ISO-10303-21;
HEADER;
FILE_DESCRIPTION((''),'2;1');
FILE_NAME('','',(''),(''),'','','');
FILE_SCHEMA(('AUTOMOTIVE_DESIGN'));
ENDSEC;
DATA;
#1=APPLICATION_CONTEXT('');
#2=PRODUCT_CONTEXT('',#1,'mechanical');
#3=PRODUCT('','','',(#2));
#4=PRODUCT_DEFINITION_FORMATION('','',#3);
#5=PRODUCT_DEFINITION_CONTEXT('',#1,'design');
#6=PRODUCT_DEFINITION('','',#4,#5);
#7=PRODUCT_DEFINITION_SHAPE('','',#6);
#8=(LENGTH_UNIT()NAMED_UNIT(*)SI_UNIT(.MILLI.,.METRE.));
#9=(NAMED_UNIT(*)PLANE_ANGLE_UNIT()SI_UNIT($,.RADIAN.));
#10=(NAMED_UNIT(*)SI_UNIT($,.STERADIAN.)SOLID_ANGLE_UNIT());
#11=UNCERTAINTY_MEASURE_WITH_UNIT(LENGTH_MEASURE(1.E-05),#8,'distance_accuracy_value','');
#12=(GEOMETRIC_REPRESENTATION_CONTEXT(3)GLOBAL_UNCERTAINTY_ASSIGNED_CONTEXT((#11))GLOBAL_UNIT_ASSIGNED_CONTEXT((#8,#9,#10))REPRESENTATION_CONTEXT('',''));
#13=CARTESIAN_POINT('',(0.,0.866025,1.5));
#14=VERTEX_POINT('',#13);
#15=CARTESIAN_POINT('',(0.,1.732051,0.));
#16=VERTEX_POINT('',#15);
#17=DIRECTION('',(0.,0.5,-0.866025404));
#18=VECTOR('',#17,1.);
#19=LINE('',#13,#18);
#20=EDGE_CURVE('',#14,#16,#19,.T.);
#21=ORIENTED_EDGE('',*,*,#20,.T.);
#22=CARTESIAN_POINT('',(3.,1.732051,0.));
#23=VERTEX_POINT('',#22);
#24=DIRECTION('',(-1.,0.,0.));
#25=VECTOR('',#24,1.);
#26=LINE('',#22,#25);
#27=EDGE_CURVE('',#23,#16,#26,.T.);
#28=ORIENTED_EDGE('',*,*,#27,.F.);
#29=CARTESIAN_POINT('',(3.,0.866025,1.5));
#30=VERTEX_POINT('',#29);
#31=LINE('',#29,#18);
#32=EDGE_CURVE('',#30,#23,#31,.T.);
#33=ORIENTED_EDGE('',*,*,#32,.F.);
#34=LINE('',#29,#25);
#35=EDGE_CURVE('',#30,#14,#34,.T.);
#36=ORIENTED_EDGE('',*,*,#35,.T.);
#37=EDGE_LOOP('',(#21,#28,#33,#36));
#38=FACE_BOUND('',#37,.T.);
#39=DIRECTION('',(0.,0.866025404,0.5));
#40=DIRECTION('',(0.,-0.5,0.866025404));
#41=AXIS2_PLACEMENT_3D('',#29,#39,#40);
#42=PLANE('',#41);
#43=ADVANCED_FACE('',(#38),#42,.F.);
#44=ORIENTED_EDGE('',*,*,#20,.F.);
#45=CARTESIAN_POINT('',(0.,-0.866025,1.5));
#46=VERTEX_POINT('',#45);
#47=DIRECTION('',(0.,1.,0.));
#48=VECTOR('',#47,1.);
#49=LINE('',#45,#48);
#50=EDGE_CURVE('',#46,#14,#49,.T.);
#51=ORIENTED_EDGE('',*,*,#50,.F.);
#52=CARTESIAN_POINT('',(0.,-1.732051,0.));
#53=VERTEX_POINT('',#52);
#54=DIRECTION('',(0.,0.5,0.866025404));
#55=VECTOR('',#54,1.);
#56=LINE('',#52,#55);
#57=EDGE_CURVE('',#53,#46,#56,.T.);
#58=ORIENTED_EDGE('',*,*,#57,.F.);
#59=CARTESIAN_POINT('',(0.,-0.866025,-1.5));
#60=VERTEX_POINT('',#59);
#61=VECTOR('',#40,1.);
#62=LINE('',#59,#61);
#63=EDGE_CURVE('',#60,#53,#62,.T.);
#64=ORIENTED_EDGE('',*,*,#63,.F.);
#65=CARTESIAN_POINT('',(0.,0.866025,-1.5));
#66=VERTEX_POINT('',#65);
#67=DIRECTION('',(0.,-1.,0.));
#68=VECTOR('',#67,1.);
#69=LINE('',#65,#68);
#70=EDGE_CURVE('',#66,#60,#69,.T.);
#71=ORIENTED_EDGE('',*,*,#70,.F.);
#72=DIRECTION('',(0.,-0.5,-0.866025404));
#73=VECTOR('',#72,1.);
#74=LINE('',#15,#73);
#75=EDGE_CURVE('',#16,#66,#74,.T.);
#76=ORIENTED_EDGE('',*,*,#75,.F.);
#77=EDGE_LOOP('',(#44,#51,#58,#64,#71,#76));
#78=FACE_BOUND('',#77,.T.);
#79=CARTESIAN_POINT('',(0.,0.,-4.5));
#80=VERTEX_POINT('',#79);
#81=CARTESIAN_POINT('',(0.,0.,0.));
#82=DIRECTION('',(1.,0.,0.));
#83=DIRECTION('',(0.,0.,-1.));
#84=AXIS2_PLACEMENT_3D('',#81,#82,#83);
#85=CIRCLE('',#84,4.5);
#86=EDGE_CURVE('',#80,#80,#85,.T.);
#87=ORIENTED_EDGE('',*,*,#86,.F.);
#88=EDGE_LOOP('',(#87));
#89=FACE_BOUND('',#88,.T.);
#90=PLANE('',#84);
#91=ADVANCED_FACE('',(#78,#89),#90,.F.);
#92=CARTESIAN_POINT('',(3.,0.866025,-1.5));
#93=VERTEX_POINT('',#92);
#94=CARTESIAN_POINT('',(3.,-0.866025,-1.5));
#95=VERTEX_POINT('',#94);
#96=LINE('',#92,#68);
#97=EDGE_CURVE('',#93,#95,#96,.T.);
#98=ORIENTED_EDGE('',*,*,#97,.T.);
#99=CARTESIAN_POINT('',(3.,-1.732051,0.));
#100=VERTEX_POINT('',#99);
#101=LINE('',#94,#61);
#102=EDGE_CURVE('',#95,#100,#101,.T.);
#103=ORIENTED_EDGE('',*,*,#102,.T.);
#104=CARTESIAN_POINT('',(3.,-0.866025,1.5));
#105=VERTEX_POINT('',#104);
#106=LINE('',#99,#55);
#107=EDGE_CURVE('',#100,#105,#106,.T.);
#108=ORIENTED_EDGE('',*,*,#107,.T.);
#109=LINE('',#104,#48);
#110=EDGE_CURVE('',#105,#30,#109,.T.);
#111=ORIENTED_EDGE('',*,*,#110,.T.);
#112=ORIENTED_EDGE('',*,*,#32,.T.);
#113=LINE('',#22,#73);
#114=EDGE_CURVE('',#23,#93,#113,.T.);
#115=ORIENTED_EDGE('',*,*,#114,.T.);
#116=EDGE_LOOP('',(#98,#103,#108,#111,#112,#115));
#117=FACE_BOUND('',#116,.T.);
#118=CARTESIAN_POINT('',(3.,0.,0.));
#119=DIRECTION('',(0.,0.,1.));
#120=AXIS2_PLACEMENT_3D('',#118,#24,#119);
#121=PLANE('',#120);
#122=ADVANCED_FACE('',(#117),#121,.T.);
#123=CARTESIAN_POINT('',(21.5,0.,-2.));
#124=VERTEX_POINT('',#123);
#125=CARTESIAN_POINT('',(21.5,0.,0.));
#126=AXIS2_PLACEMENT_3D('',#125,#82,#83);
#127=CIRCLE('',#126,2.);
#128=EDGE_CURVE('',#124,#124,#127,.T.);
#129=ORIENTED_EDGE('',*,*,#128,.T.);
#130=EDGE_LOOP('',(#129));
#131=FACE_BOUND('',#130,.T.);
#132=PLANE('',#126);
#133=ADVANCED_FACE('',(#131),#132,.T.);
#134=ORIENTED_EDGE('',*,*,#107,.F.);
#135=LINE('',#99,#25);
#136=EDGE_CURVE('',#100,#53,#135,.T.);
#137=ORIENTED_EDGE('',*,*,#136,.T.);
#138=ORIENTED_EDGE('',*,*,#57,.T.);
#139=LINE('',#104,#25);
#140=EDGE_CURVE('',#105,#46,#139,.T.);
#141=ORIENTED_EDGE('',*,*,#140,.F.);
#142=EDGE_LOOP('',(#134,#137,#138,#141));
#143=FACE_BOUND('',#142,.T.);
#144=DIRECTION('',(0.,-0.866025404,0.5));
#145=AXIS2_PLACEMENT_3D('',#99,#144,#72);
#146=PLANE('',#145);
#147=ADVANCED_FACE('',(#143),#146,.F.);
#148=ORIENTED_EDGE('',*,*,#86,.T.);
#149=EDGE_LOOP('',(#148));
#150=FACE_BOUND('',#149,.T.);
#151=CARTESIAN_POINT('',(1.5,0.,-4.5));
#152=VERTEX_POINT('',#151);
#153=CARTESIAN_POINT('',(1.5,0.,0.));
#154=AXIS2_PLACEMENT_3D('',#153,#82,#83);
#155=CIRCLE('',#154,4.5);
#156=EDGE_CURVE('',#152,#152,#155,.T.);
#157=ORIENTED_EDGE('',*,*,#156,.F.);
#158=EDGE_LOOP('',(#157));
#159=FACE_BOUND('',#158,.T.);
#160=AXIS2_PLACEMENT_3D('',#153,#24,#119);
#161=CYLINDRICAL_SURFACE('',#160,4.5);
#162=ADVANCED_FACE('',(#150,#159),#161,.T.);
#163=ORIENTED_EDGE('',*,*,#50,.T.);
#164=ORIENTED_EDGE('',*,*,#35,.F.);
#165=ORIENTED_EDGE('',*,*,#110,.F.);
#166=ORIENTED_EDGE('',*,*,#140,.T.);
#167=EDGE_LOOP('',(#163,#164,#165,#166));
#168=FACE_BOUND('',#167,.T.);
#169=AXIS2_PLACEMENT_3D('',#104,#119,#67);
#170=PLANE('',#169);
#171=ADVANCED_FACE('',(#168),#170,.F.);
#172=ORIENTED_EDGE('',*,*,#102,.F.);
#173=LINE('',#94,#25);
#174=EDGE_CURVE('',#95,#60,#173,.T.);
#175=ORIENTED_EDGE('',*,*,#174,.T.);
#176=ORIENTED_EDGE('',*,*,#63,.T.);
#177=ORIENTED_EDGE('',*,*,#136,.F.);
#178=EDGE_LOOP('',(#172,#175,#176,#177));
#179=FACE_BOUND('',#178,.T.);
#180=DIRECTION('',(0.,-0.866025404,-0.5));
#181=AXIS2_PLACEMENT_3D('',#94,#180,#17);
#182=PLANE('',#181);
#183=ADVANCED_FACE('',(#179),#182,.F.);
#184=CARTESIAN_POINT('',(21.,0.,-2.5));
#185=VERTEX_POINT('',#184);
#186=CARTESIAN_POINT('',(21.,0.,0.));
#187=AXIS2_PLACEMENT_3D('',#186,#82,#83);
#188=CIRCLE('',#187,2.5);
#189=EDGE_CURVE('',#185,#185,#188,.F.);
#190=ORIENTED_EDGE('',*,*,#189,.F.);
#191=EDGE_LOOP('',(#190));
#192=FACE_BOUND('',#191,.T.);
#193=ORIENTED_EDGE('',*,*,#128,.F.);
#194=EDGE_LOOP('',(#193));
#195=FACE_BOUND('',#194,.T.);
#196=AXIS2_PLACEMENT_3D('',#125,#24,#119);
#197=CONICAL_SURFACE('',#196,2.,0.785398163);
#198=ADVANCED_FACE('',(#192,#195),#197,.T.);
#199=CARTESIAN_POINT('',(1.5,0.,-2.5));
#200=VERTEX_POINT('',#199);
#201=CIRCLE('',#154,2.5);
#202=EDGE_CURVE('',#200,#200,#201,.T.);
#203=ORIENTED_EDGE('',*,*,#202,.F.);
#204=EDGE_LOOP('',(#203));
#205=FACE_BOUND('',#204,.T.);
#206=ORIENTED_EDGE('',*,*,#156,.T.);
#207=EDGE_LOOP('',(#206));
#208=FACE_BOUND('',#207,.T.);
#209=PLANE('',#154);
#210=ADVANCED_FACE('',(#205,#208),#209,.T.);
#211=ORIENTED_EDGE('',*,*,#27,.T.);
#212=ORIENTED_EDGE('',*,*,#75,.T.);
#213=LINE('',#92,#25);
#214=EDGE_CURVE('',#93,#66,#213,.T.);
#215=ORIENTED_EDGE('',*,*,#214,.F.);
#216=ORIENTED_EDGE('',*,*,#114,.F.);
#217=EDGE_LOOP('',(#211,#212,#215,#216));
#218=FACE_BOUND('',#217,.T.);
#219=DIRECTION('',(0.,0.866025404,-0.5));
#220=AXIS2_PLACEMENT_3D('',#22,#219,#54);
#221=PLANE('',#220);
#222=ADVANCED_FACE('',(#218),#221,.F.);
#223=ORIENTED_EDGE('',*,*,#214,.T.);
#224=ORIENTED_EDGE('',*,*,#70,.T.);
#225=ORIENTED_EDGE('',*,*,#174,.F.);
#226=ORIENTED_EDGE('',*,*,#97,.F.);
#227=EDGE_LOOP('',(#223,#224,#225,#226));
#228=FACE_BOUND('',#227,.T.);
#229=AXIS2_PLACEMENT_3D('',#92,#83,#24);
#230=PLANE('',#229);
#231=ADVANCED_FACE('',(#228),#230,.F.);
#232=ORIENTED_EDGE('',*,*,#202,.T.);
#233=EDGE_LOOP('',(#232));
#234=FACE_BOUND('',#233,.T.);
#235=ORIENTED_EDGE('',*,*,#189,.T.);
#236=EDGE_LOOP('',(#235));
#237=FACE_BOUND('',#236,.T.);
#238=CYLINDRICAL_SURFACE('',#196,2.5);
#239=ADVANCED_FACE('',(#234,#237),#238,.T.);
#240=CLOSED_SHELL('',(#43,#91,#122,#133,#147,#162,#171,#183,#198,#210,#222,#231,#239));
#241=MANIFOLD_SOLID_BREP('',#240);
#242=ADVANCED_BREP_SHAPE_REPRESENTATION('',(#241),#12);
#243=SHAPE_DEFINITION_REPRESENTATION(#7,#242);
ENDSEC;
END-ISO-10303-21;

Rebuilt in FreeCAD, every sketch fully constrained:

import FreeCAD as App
import Part
import Sketcher
from FreeCAD import Vector
Q = App.Units.Quantity


def edges_at(feature, points):
    """Names of the edges that pass closest to the given points."""
    edges = feature.Shape.Edges
    near = lambda p: min(range(len(edges)), key=lambda i: edges[i].distToShape(Part.Vertex(*p))[0])
    return sorted({f"Edge{near(p) + 1}" for p in points})

doc = App.newDocument("Part")
body = doc.addObject("PartDesign::Body", "Body")

sketch1 = doc.addObject("Sketcher::SketchObject", "Sketch")
body.addObject(sketch1)
sketch1.AttachmentSupport = (doc.YZ_Plane, [""])
sketch1.MapMode = "FlatFace"
sketch1.addGeometry(Part.Circle(Vector(0, 0, 0), Vector(0, 0, 1), 4.5), False)
sketch1.addConstraint(Sketcher.Constraint("Coincident", 0, 3, -1, 1))
sketch1.addConstraint(Sketcher.Constraint("Diameter", 0, 9.0))
pad1 = doc.addObject("PartDesign::Pad", "Pad")
body.addObject(pad1)
pad1.Profile = sketch1
pad1.Length = 1.5

sketch2 = doc.addObject("Sketcher::SketchObject", "Sketch001")
body.addObject(sketch2)
sketch2.AttachmentSupport = (doc.YZ_Plane, [""])
sketch2.MapMode = "FlatFace"
sketch2.AttachmentOffset = App.Placement(Vector(0, 0, 1.5), App.Rotation())
sketch2.addGeometry(Part.Circle(Vector(0, 0, 0), Vector(0, 0, 1), 2.5), False)
sketch2.addConstraint(Sketcher.Constraint("Coincident", 0, 3, -1, 1))
sketch2.addConstraint(Sketcher.Constraint("Diameter", 0, 5.0))
pad2 = doc.addObject("PartDesign::Pad", "Pad001")
body.addObject(pad2)
pad2.Profile = sketch2
pad2.Length = 20

sketch3 = doc.addObject("Sketcher::SketchObject", "Sketch002")
body.addObject(sketch3)
sketch3.AttachmentSupport = (doc.YZ_Plane, [""])
sketch3.MapMode = "FlatFace"
sketch3.addGeometry(Part.LineSegment(Vector(1.7, 0, 0), Vector(0.9, -1.5, 0)), False)
sketch3.addGeometry(Part.LineSegment(Vector(0.9, -1.5, 0), Vector(-0.9, -1.5, 0)), False)
sketch3.addGeometry(Part.LineSegment(Vector(-0.9, -1.5, 0), Vector(-1.7, 0, 0)), False)
sketch3.addGeometry(Part.LineSegment(Vector(-1.7, 0, 0), Vector(-0.9, 1.5, 0)), False)
sketch3.addGeometry(Part.LineSegment(Vector(-0.9, 1.5, 0), Vector(0.9, 1.5, 0)), False)
sketch3.addGeometry(Part.LineSegment(Vector(0.9, 1.5, 0), Vector(1.7, 0, 0)), False)
sketch3.addConstraint(Sketcher.Constraint("Coincident", 0, 2, 1, 1))
sketch3.addConstraint(Sketcher.Constraint("Coincident", 1, 2, 2, 1))
sketch3.addConstraint(Sketcher.Constraint("Coincident", 2, 2, 3, 1))
sketch3.addConstraint(Sketcher.Constraint("Coincident", 3, 2, 4, 1))
sketch3.addConstraint(Sketcher.Constraint("Coincident", 4, 2, 5, 1))
sketch3.addConstraint(Sketcher.Constraint("Coincident", 5, 2, 0, 1))
sketch3.addConstraint(Sketcher.Constraint("Horizontal", 1))
sketch3.addConstraint(Sketcher.Constraint("Horizontal", 4))
sketch3.addConstraint(Sketcher.Constraint("Symmetric", 0, 2, 3, 2, -1, 1))
sketch3.addConstraint(Sketcher.Constraint("Symmetric", 2, 2, 5, 2, -1, 1))
sketch3.addConstraint(Sketcher.Constraint("PointOnObject", 2, 2, -1))
sketch3.addConstraint(Sketcher.Constraint("Parallel", 2, 5))
sketch3.addConstraint(Sketcher.Constraint("Vertical", 1, 2, 3, 2))
sketch3.addConstraint(Sketcher.Constraint("Angle", 0, Q("-120 deg")))
sketch3.addConstraint(Sketcher.Constraint("DistanceY", 1, 2, 3, 2, 3.0))
sketch3.addConstraint(Sketcher.Constraint("DistanceX", 1, 2, 1, 1, 1.732051))
pocket1 = doc.addObject("PartDesign::Pocket", "Pocket")
body.addObject(pocket1)
pocket1.Profile = sketch3
pocket1.Length = 3
pocket1.Reversed = True
doc.recompute()

chamfer = doc.addObject("PartDesign::Chamfer", "Chamfer")
body.addObject(chamfer)
chamfer.Base = (pocket1, edges_at(pocket1, [(21.5, 0, 2.5)]))
chamfer.Size = 0.5

doc.recompute()
